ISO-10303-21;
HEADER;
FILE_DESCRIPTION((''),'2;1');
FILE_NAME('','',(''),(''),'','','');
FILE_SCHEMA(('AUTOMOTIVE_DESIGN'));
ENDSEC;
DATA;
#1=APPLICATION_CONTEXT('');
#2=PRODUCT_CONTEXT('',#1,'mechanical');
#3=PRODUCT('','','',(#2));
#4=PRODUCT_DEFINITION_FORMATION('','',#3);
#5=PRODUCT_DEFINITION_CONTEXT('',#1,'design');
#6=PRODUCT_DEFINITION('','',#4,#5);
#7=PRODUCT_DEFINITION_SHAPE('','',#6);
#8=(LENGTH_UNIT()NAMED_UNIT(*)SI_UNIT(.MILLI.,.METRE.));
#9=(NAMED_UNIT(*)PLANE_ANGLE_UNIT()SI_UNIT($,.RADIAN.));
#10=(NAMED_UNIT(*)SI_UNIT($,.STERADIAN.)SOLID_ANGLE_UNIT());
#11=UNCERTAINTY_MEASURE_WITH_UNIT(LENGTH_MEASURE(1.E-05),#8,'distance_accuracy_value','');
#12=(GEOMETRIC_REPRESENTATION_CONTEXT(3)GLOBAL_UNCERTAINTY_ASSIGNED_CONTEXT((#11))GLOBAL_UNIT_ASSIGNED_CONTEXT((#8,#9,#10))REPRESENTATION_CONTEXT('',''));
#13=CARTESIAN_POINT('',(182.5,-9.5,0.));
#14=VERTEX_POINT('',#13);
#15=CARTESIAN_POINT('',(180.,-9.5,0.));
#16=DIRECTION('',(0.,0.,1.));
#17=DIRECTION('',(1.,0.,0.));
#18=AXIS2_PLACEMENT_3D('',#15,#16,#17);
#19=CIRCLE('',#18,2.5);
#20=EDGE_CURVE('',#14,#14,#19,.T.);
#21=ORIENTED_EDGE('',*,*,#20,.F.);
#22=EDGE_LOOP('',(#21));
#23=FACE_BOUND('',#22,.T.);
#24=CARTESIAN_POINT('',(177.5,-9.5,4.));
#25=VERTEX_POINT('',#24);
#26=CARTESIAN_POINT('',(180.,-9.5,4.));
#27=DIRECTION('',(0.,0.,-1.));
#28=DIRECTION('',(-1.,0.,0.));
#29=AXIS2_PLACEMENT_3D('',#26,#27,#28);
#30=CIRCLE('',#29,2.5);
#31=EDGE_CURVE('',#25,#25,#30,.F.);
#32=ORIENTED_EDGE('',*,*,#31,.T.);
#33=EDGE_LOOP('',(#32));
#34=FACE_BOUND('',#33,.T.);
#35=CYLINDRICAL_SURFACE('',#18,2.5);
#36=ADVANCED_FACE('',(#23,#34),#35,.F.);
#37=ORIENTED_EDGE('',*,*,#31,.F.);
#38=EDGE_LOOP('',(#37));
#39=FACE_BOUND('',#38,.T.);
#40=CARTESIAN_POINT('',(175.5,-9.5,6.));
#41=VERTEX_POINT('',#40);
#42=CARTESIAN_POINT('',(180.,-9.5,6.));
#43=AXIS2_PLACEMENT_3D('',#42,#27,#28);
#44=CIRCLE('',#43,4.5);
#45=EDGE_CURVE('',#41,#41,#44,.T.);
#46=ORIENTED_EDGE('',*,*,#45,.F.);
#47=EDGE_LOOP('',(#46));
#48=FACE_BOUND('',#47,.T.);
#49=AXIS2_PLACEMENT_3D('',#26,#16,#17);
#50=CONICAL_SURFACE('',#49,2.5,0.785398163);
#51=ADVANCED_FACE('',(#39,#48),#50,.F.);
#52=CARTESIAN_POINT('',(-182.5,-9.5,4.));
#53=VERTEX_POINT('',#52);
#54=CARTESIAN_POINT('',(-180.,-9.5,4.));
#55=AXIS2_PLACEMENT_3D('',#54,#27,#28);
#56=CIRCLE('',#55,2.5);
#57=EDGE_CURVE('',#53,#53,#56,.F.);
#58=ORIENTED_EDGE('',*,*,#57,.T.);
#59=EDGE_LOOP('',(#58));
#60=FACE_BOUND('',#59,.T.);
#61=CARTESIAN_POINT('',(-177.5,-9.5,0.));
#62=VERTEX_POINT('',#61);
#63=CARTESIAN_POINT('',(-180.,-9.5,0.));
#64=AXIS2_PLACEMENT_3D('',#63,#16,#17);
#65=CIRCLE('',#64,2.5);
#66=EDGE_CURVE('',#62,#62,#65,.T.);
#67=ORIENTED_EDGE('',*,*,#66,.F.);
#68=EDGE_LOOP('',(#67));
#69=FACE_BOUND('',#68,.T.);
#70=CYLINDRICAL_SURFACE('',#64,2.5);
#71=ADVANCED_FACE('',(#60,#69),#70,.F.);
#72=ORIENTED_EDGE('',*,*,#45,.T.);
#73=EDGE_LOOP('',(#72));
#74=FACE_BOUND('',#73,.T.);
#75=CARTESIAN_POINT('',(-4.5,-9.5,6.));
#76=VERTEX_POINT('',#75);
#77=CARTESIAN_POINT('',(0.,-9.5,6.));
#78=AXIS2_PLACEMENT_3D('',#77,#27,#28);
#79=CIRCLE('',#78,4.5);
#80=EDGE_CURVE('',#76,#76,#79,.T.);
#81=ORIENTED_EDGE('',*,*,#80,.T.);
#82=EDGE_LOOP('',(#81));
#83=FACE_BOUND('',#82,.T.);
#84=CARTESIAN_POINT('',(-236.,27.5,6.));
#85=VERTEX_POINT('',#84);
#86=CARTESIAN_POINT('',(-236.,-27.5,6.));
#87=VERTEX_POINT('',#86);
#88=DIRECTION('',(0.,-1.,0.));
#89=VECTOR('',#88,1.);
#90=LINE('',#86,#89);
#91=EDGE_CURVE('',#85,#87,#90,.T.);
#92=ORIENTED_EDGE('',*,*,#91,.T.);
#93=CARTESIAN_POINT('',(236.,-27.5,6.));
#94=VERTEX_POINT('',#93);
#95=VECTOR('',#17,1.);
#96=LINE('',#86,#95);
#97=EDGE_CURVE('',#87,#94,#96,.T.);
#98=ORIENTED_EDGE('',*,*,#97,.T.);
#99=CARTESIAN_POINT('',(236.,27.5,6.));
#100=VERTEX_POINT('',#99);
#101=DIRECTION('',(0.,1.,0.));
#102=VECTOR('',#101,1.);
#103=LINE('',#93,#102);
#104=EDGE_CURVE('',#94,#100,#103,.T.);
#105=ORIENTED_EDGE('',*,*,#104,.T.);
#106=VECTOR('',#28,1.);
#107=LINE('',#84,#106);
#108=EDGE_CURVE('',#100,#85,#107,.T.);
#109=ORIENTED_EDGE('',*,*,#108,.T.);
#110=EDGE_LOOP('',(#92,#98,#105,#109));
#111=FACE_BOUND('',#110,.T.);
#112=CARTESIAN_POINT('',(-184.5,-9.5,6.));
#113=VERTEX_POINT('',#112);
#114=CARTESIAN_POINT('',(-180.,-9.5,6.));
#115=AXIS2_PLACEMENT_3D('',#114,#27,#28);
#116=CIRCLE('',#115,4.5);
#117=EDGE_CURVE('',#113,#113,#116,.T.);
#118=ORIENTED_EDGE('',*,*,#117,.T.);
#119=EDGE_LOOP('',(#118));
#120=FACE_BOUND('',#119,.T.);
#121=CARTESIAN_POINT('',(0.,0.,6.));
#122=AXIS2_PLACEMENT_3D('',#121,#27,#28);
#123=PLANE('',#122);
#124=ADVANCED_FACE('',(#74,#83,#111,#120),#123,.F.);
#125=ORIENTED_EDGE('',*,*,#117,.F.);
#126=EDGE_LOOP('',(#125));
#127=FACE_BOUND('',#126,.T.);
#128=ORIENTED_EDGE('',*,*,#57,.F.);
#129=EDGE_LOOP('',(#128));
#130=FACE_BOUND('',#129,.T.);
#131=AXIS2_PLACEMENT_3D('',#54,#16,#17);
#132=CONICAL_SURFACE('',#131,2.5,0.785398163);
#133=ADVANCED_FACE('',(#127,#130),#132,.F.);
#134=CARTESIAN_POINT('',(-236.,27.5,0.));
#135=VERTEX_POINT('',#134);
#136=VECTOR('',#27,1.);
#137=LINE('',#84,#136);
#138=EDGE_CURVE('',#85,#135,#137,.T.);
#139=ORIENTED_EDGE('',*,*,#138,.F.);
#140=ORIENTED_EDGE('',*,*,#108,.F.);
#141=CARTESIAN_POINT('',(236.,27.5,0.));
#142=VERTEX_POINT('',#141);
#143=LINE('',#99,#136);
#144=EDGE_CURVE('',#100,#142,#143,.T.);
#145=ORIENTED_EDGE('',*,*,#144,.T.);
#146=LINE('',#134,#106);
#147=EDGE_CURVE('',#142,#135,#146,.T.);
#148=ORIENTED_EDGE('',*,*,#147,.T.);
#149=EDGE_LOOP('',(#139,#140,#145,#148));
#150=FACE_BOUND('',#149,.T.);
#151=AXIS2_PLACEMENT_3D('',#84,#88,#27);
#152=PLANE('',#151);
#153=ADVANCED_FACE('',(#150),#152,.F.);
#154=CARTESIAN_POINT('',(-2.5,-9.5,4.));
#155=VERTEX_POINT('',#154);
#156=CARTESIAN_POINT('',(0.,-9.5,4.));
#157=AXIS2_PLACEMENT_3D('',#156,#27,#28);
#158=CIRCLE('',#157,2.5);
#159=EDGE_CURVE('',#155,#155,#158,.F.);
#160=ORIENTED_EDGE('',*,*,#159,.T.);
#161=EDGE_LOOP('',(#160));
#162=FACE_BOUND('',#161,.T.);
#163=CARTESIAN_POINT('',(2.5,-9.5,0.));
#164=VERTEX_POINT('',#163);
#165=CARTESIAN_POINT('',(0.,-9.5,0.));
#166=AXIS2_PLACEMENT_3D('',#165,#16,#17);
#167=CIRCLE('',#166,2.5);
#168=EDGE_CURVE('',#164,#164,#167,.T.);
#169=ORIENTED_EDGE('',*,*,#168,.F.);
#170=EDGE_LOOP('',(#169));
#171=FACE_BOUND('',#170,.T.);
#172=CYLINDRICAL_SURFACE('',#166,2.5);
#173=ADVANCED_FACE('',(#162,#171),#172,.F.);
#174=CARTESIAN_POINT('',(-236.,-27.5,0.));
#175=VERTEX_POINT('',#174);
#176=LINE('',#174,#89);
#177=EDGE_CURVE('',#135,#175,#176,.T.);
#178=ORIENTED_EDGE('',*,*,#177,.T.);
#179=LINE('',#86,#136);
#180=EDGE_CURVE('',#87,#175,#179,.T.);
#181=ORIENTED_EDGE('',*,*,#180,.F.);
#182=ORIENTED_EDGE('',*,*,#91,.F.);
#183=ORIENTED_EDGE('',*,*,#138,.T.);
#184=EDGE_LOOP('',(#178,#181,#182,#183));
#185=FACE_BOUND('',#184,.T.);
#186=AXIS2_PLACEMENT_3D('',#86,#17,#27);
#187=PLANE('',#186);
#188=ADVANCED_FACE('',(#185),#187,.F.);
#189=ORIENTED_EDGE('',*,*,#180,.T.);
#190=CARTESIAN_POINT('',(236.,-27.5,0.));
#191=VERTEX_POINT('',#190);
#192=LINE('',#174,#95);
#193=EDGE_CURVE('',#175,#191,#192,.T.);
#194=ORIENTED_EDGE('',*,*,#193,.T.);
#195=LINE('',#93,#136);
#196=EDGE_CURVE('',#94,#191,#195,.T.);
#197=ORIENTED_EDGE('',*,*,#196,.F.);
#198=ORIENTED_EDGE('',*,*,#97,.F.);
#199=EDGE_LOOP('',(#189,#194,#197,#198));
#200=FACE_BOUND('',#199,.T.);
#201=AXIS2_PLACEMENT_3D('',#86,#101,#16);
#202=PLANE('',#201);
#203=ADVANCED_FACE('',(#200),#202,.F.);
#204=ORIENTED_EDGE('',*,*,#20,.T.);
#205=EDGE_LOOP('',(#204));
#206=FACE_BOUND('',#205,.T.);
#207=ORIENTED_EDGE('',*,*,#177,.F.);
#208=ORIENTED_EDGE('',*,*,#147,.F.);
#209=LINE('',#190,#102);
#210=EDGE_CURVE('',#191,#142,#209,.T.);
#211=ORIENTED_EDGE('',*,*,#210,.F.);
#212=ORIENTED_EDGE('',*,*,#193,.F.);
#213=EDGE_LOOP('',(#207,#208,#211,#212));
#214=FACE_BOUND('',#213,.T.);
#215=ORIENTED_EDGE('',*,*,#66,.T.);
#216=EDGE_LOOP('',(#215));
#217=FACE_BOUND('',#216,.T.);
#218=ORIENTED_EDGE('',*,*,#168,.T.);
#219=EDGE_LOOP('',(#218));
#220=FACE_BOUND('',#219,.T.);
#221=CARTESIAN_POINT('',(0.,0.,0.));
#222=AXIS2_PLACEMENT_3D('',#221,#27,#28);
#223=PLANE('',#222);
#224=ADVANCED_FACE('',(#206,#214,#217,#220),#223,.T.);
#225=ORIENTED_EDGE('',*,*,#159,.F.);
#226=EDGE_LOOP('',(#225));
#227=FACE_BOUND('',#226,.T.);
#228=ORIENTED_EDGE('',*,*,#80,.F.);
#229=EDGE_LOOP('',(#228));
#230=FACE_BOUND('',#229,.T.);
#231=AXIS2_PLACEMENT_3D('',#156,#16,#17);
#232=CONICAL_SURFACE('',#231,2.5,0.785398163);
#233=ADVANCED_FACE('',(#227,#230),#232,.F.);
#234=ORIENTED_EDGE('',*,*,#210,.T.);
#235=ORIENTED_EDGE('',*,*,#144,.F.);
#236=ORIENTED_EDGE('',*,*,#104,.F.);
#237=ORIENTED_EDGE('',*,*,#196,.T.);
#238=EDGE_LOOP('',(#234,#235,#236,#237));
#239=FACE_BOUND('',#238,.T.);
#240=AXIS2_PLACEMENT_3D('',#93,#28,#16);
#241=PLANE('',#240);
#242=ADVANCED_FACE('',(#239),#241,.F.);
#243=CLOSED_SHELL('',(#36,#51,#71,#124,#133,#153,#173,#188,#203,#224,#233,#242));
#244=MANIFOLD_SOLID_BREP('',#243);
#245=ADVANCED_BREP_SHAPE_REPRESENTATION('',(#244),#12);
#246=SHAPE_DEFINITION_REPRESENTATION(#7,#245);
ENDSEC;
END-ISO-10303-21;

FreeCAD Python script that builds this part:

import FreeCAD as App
import Part
import Sketcher

V = App.Vector
Q = App.Units.Quantity


def edges_at(feature, points):
    """Names of the edges that pass closest to the given points."""
    edges = feature.Shape.Edges
    near = lambda p: min(range(len(edges)), key=lambda i: edges[i].distToShape(Part.Vertex(*p))[0])
    return sorted({f"Edge{near(p) + 1}" for p in points})


def add_polygon(sketch, points):
    """Adds a closed chain of lines whose ends are joined by coincident constraints."""
    first, n = sketch.GeometryCount, len(points)
    for a, b in zip(points, points[1:] + points[:1]):
        sketch.addGeometry(Part.LineSegment(App.Vector(*a, 0), App.Vector(*b, 0)), False)
    for i in range(n):
        sketch.addConstraint(Sketcher.Constraint("Coincident", first + i, 2, first + (i + 1) % n, 1))

doc = App.newDocument("Part")
params = doc.addObject("Spreadsheet::Sheet", "Params")
for row, (alias, value) in enumerate([
    ("sketch1_width", "472 mm"),
    ("sketch1_height", "55 mm"),
    ("pad1_length", "6 mm"),
    ("sketch2_diameter", "5 mm"),
    ("chamfer_size", "2 mm"),
], start=1):
    params.set(f"A{row}", alias)
    params.set(f"B{row}", "=" + value)
    params.setAlias(f"B{row}", alias)

body = doc.addObject("PartDesign::Body", "Body")

sketch1 = body.newObject("Sketcher::SketchObject", "Sketch")
sketch1.AttachmentSupport = (doc.getObject("XY_Plane"), [""])
sketch1.MapMode = "FlatFace"
add_polygon(sketch1, [(-236, 27.5), (-236, -27.5), (236, -27.5), (236, 27.5)])
sketch1.addConstraint([
    Sketcher.Constraint("Vertical", 0),
    Sketcher.Constraint("Horizontal", 1),
    Sketcher.Constraint("Vertical", 2),
    Sketcher.Constraint("Horizontal", 3),
    Sketcher.Constraint("Symmetric", 0, 2, 2, 2, -1, 1),
    Sketcher.Constraint("DistanceX", 1, 1, 1, 2, Q("472 mm")),
    Sketcher.Constraint("DistanceY", 0, 2, 0, 1, Q("55 mm")),
])
sketch1.setExpression("Constraints[9]", "Params.sketch1_width")
sketch1.setExpression("Constraints[10]", "Params.sketch1_height")
pad1 = body.newObject("PartDesign::Pad", "Pad")
pad1.Profile = sketch1
pad1.setExpression("Length", "Params.pad1_length")

sketch2 = body.newObject("Sketcher::SketchObject", "Sketch001")
sketch2.AttachmentSupport = (doc.getObject("XY_Plane"), [""])
sketch2.MapMode = "FlatFace"
sketch2.AttachmentOffset = App.Placement(V(0, 0, 6), App.Rotation())
sketch2.addGeometry([
    Part.Circle(V(-180, -9.5, 0), V(0, 0, 1), 2.5),
    Part.Circle(V(0, -9.5, 0), V(0, 0, 1), 2.5),
    Part.Circle(V(180, -9.5, 0), V(0, 0, 1), 2.5),
], False)
sketch2.addConstraint([
    Sketcher.Constraint("Equal", 0, 1),
    Sketcher.Constraint("Equal", 1, 2),
    Sketcher.Constraint("Symmetric", 0, 3, 2, 3, -2),
    Sketcher.Constraint("PointOnObject", 1, 3, -2),
    Sketcher.Constraint("Horizontal", 0, 3, 1, 3),
    Sketcher.Constraint("Diameter", 0, Q("5 mm")),
    Sketcher.Constraint("DistanceX", 0, 3, -1, 1, Q("180 mm")),
    Sketcher.Constraint("DistanceY", 0, 3, -1, 1, Q("9.5 mm")),
])
sketch2.setExpression("Constraints[5]", "Params.sketch2_diameter")
pocket1 = body.newObject("PartDesign::Pocket", "Pocket")
pocket1.Profile = sketch2
pocket1.Type = "ThroughAll"
doc.recompute()

chamfer = body.newObject("PartDesign::Chamfer", "Chamfer")
chamfer.Base = (pocket1, edges_at(pocket1, [(-182.5, -9.5, 6), (-2.5, -9.5, 6), (177.5, -9.5, 6)]))
chamfer.setExpression("Size", "Params.chamfer_size")

doc.recompute()
